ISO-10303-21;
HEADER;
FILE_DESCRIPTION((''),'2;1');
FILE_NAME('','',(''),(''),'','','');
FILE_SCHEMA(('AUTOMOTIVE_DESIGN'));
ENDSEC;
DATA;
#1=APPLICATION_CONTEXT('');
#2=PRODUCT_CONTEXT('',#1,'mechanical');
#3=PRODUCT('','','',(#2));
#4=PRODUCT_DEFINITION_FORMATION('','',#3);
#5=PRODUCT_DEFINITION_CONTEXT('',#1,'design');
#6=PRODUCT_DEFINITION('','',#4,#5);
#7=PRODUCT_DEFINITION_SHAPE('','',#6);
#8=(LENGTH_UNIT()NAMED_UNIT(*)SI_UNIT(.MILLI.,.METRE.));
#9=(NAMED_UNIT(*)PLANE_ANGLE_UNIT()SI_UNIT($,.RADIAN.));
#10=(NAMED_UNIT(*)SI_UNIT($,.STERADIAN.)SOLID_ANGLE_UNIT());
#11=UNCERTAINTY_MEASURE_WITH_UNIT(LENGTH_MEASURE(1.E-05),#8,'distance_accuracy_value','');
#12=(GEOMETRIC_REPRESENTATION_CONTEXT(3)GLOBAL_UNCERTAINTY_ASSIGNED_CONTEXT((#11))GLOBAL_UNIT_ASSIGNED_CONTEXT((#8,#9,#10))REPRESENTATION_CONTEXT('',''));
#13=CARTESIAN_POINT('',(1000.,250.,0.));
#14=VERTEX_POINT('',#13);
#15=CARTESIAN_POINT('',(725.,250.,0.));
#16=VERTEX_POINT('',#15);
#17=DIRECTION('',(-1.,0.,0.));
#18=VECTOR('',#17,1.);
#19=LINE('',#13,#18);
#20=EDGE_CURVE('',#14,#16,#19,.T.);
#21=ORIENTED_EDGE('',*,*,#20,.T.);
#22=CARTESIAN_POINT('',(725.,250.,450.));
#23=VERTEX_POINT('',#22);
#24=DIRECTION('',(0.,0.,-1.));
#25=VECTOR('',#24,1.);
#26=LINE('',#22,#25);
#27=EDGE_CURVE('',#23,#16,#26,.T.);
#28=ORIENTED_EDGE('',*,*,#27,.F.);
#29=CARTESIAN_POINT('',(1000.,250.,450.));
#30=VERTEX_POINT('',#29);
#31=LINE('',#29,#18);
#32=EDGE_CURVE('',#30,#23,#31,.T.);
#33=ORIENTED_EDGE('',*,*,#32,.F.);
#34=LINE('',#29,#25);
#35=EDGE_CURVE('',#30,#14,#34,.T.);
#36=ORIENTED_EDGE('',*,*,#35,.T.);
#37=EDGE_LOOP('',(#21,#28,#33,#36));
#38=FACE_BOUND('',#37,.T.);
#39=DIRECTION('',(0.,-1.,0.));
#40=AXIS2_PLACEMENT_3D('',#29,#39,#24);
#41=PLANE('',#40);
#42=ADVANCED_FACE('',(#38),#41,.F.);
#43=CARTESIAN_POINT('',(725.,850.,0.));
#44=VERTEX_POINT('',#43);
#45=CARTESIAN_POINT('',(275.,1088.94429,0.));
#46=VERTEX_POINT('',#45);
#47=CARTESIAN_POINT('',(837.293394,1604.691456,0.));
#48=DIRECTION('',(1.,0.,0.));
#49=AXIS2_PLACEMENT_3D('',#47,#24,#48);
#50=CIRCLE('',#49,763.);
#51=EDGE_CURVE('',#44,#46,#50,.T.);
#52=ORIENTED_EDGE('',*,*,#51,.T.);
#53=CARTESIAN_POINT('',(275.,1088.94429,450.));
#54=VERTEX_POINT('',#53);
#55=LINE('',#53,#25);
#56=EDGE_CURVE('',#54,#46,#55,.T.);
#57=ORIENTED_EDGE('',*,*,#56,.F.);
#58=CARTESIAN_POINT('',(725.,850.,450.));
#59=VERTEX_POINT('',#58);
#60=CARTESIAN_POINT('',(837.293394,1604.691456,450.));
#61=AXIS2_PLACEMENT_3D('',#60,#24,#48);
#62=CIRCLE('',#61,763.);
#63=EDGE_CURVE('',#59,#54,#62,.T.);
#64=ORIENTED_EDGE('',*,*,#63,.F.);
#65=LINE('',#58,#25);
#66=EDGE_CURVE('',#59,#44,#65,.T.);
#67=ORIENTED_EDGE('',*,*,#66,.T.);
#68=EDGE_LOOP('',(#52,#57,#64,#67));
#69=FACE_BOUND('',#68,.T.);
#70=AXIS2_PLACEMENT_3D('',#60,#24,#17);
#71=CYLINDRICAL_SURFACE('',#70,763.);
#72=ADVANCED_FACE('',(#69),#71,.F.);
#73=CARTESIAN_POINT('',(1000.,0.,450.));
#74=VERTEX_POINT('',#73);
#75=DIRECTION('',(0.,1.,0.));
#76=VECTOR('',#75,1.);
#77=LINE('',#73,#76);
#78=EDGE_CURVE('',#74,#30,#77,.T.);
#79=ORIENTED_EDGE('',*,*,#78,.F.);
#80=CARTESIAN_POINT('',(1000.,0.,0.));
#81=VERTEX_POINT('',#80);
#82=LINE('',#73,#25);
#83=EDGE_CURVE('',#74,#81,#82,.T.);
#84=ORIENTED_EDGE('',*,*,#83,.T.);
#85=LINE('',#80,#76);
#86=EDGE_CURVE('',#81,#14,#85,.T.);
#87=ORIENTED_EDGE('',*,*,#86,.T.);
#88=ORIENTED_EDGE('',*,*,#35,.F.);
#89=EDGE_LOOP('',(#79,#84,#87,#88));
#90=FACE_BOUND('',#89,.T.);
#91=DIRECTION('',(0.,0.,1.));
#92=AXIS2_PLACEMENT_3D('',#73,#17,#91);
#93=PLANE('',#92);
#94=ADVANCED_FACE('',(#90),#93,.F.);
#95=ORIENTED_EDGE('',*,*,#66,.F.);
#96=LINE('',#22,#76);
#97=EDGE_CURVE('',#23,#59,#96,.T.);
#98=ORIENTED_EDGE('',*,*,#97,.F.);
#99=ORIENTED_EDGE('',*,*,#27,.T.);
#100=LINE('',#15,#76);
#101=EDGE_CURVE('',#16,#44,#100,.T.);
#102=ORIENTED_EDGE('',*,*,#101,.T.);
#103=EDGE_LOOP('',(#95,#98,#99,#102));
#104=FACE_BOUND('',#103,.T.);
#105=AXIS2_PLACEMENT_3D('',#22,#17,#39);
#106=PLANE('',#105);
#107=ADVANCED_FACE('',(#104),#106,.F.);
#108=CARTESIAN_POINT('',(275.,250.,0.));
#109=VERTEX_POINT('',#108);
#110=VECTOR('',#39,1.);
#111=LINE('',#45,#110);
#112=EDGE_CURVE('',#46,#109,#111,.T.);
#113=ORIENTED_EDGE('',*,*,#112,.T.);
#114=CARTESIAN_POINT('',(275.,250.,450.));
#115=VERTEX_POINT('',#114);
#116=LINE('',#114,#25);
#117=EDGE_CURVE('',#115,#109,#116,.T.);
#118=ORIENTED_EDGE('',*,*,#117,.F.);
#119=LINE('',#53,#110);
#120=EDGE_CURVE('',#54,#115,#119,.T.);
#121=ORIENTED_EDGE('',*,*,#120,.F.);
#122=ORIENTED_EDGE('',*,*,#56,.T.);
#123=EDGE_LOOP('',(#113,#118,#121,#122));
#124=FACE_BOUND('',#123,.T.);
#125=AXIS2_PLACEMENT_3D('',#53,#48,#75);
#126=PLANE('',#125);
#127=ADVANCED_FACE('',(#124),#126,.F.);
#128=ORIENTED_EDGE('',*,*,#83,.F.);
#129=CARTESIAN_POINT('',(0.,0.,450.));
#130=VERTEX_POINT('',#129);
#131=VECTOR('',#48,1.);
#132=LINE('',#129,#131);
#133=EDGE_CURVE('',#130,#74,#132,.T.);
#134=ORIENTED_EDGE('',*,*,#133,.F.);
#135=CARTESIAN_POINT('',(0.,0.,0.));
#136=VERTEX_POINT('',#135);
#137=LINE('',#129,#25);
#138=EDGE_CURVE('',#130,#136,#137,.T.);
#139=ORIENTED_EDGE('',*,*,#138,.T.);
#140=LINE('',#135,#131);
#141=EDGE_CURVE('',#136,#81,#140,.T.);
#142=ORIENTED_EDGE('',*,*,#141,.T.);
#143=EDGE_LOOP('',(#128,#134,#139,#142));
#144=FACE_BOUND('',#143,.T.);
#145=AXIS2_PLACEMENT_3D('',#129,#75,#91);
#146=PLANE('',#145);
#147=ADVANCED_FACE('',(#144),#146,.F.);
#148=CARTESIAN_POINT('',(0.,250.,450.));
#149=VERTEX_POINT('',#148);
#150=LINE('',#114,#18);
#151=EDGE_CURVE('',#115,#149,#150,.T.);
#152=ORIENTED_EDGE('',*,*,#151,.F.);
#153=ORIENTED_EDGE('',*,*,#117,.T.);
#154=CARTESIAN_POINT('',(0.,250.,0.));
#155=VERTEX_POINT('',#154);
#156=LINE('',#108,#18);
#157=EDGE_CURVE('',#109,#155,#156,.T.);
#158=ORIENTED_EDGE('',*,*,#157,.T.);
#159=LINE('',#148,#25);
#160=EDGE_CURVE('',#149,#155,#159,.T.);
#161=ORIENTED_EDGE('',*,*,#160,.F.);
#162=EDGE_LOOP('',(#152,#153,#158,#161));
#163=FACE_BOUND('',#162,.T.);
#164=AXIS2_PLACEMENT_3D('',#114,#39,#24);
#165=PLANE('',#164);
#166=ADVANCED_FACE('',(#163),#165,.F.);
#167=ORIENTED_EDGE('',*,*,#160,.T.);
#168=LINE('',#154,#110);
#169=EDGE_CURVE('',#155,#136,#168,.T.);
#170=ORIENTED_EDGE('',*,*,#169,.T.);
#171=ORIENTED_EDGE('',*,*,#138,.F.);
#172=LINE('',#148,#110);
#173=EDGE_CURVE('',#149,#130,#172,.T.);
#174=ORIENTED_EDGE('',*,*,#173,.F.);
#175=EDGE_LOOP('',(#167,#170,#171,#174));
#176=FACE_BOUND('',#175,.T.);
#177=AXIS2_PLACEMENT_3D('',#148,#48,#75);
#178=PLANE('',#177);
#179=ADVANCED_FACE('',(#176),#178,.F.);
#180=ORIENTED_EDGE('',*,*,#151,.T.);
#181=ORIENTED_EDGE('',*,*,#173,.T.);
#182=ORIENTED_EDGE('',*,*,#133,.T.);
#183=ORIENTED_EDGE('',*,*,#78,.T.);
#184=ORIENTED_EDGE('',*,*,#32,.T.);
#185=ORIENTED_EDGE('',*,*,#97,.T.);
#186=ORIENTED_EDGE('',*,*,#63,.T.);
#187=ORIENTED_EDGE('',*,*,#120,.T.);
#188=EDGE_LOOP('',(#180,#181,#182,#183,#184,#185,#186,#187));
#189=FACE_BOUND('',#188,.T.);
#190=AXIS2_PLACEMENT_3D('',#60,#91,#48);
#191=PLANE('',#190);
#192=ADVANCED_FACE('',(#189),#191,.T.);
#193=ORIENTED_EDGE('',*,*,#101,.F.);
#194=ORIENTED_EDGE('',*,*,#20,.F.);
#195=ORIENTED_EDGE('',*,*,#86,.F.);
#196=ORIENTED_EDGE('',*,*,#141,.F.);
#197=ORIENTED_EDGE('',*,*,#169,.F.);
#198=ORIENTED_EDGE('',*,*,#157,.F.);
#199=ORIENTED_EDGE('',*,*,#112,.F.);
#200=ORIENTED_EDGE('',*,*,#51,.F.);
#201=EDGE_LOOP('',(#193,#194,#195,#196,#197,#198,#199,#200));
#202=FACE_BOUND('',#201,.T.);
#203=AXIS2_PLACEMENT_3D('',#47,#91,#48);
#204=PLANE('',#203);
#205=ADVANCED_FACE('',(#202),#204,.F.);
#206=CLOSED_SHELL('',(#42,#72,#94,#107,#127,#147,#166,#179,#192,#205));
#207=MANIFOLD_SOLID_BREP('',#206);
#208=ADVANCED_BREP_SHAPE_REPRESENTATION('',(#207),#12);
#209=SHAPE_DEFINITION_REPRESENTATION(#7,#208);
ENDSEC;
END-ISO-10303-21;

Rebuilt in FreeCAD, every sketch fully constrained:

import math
import FreeCAD as App
import Part
import Sketcher
from FreeCAD import Vector

doc = App.newDocument("Part")
body = doc.addObject("PartDesign::Body", "Body")

sketch1 = body.newObject("Sketcher::SketchObject", "Sketch")
sketch1.AttachmentSupport = (doc.getObject("XY_Plane"), [""])
sketch1.MapMode = "FlatFace"
sketch1.addGeometry([
    Part.LineSegment(Vector(275, 1089, 0), Vector(275, 250, 0)),
    Part.LineSegment(Vector(275, 250, 0), Vector(0, 250, 0)),
    Part.LineSegment(Vector(0, 250, 0), Vector(0, 0, 0)),
    Part.LineSegment(Vector(0, 0, 0), Vector(1000, 0, 0)),
    Part.LineSegment(Vector(1000, 0, 0), Vector(1000, 250, 0)),
    Part.LineSegment(Vector(1000, 250, 0), Vector(725, 250, 0)),
    Part.LineSegment(Vector(725, 250, 0), Vector(725, 850, 0)),
    Part.ArcOfCircle(Part.Circle(Vector(837, 1605, 0), Vector(0, 0, 1), 763), math.radians(-137), math.radians(-98)),
], False)
sketch1.addConstraint([
    Sketcher.Constraint("Coincident", 0, 2, 1, 1),
    Sketcher.Constraint("Coincident", 1, 2, 2, 1),
    Sketcher.Constraint("Coincident", 2, 2, 3, 1),
    Sketcher.Constraint("Coincident", 3, 2, 4, 1),
    Sketcher.Constraint("Coincident", 4, 2, 5, 1),
    Sketcher.Constraint("Coincident", 5, 2, 6, 1),
    Sketcher.Constraint("Coincident", 6, 2, 7, 2),
    Sketcher.Constraint("Coincident", 7, 1, 0, 1),
    Sketcher.Constraint("Vertical", 0),
    Sketcher.Constraint("Horizontal", 1),
    Sketcher.Constraint("Vertical", 2),
    Sketcher.Constraint("Horizontal", 3),
    Sketcher.Constraint("Vertical", 4),
    Sketcher.Constraint("Horizontal", 5),
    Sketcher.Constraint("Vertical", 6),
    Sketcher.Constraint("Coincident", 2, 2, -1, 1),
    Sketcher.Constraint("Horizontal", 1, 2, 4, 2),
    Sketcher.Constraint("Equal", 1, 5),
    Sketcher.Constraint("Radius", 7, 763.0),
    Sketcher.Constraint("DistanceX", 1, 2, 1, 1, 275.0),
    Sketcher.Constraint("DistanceX", 3, 1, 3, 2, 1000.0),
    Sketcher.Constraint("DistanceY", 2, 2, 2, 1, 250.0),
    Sketcher.Constraint("DistanceY", 6, 1, 6, 2, 600.0),
    Sketcher.Constraint("DistanceY", 0, 2, 0, 1, 838.94429),
])
pad1 = body.newObject("PartDesign::Pad", "Pad")
pad1.Profile = sketch1
pad1.Length = 450

doc.recompute()
